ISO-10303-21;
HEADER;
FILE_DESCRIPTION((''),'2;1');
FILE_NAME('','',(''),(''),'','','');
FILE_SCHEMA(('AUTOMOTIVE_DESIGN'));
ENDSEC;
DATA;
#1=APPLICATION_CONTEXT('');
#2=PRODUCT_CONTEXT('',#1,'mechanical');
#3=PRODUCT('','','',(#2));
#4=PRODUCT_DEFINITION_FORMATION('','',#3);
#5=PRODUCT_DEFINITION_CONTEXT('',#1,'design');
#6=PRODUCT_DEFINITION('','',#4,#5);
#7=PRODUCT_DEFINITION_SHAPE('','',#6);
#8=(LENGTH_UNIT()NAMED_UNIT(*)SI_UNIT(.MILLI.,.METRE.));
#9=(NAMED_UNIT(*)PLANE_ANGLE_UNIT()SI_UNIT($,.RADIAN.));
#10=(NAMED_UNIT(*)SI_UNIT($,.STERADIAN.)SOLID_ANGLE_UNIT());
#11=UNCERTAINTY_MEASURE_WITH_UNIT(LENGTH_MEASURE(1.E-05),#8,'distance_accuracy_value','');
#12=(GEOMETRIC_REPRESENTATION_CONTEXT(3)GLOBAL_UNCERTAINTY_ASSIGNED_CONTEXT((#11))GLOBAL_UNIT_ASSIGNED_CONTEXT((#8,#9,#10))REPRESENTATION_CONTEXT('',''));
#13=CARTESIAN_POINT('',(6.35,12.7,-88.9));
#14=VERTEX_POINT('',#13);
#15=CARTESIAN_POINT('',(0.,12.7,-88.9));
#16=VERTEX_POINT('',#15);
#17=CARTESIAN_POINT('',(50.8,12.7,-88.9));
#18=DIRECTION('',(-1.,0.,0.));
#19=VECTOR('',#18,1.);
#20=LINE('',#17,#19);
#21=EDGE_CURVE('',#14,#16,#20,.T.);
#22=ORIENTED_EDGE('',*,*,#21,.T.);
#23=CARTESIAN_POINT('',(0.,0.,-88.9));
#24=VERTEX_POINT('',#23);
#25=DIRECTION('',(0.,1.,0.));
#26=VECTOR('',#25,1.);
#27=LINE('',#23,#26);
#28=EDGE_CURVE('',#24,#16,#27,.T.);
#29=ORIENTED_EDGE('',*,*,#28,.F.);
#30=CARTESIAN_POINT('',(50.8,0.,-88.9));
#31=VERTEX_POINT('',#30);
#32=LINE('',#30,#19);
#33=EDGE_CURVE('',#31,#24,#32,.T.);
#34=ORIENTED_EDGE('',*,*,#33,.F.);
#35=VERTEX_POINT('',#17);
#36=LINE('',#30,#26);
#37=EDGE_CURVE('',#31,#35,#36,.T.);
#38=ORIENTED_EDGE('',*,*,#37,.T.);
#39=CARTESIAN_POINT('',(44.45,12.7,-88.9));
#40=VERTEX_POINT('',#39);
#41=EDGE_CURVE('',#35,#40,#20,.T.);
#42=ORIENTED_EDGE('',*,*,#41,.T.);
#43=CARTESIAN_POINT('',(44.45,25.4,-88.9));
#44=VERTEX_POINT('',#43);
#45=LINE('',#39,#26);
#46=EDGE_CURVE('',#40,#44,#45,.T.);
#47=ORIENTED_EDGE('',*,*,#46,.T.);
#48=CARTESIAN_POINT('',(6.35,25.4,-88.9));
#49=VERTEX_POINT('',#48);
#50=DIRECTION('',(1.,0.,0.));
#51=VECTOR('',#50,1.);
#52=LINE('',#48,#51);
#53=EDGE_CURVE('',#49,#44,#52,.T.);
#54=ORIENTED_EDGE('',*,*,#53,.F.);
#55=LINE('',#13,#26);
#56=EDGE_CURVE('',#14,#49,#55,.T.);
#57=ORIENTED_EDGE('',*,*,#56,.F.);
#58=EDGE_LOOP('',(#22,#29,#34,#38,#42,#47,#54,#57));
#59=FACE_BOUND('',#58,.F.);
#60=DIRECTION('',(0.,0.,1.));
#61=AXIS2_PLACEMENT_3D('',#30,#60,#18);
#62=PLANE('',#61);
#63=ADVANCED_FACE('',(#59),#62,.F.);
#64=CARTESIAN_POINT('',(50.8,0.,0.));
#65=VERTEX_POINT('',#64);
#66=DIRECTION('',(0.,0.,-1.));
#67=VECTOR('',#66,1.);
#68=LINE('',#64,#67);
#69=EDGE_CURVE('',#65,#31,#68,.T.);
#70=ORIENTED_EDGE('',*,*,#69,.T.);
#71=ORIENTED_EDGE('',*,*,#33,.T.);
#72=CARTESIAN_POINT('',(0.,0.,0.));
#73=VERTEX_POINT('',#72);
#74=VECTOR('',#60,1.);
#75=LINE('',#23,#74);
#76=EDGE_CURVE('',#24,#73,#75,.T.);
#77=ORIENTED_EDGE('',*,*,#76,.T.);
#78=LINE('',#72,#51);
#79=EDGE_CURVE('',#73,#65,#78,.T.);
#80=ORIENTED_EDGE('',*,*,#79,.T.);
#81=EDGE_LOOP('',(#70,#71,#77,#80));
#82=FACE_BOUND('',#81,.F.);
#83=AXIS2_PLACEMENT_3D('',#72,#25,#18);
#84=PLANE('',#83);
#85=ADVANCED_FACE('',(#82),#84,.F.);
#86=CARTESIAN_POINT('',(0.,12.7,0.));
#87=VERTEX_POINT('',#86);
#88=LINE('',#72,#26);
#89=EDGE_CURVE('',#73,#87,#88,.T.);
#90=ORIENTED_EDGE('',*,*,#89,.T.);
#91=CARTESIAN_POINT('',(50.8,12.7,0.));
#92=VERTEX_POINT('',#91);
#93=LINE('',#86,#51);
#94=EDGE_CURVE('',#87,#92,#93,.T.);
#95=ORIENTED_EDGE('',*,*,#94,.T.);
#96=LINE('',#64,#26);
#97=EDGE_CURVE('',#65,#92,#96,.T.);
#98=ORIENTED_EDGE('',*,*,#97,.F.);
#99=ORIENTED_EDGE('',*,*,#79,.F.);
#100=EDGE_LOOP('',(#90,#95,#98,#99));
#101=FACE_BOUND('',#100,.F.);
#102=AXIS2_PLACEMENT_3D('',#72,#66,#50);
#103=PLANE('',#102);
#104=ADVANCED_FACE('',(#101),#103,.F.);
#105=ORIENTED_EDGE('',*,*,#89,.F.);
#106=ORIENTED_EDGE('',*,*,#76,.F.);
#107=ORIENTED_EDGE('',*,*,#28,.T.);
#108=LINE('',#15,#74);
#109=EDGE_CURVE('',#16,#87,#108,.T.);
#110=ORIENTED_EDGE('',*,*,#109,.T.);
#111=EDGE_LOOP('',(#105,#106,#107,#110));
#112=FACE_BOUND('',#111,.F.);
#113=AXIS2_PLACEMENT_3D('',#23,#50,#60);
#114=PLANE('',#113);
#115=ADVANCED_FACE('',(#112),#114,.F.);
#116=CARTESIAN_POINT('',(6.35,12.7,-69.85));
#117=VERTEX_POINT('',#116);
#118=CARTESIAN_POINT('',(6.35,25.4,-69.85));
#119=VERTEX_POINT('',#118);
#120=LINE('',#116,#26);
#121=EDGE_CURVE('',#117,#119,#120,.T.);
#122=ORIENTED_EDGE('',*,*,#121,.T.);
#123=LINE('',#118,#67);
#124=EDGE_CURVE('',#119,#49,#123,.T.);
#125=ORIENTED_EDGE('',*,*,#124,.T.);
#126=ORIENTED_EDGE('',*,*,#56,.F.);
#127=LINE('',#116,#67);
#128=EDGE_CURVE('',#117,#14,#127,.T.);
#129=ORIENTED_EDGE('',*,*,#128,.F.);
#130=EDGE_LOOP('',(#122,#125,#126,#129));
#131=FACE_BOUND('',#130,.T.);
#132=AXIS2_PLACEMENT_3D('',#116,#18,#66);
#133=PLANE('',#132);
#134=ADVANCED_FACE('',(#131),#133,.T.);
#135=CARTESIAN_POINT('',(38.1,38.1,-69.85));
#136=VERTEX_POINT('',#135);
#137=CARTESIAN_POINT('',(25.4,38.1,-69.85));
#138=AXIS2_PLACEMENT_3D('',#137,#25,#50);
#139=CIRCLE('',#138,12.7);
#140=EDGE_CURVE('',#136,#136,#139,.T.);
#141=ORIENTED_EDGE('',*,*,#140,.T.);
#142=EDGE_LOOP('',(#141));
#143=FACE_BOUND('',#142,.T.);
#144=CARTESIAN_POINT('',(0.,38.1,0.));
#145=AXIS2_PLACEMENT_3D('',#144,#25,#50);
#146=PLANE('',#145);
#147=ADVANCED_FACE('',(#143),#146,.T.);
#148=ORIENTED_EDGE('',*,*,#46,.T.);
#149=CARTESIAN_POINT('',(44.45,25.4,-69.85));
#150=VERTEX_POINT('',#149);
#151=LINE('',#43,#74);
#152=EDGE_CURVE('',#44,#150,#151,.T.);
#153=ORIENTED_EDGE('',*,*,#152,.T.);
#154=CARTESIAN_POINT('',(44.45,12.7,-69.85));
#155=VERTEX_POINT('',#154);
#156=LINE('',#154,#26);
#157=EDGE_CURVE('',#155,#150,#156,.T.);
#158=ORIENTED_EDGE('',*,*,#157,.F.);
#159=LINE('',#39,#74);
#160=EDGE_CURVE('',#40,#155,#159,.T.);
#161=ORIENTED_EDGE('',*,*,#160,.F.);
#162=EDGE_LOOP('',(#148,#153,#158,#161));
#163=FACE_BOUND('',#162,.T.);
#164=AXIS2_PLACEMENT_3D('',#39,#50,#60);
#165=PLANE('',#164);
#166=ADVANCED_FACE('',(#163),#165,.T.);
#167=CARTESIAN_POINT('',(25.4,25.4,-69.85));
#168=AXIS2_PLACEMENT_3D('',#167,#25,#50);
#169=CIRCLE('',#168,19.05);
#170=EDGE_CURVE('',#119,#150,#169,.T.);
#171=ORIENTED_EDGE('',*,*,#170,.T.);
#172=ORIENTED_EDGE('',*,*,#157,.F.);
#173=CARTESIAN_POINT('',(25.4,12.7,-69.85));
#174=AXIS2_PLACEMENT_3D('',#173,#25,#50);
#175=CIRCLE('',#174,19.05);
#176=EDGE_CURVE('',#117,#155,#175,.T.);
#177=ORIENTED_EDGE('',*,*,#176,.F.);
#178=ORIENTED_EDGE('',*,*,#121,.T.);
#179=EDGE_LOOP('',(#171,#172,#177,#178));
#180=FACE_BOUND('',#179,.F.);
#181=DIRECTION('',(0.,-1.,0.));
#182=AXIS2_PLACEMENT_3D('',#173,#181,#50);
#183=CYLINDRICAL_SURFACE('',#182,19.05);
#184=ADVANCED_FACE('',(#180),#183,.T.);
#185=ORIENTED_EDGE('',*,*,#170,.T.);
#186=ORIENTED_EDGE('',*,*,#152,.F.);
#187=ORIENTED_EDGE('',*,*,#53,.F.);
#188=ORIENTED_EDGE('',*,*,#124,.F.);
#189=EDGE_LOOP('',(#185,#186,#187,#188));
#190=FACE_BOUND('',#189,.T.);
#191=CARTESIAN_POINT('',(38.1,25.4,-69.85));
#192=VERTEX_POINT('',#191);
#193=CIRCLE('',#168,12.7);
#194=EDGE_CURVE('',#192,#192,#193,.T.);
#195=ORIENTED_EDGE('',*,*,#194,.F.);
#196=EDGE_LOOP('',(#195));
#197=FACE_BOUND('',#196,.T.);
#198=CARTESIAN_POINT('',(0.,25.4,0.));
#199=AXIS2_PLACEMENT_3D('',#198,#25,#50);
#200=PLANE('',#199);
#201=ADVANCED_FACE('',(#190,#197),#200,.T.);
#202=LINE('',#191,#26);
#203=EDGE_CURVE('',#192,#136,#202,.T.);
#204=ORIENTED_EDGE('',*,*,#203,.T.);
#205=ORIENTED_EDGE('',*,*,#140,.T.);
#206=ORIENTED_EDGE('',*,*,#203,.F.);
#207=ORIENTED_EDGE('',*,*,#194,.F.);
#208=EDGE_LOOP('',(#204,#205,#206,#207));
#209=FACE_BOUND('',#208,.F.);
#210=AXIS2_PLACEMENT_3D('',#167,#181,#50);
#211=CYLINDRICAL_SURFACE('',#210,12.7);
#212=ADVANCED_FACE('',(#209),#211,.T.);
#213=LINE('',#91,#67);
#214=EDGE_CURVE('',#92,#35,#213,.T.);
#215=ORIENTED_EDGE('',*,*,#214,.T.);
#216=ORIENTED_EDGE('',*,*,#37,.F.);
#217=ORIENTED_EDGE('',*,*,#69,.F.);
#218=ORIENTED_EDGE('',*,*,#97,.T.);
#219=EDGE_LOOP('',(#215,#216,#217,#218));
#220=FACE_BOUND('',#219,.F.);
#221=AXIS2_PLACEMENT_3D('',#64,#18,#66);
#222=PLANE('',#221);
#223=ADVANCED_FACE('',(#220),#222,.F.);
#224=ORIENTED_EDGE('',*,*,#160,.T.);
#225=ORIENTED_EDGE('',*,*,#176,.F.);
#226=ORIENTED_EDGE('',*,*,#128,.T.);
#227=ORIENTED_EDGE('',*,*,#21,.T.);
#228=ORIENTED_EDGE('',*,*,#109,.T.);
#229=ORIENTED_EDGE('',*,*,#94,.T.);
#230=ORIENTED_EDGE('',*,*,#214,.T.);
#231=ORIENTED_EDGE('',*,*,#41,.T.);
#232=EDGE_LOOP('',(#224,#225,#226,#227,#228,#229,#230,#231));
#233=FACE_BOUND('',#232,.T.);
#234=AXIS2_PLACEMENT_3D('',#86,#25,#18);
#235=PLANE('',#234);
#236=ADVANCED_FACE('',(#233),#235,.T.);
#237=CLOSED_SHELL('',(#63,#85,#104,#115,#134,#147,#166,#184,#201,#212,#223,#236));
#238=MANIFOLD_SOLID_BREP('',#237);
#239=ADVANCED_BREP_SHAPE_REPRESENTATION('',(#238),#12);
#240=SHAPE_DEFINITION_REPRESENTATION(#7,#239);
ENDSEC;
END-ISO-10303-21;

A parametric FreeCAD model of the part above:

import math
import FreeCAD as App
import Part
import Sketcher
Q = App.Units.Quantity

doc = App.newDocument("Part")
body = doc.addObject("PartDesign::Body", "Body")

sketch1 = body.newObject("Sketcher::SketchObject", "Sketch")
sketch1.AttachmentSupport = (doc.getObject("XZ_Plane"), [""])
sketch1.MapMode = "FlatFace"
sketch1.addGeometry(Part.LineSegment(App.Vector(0, -88.9, 0), App.Vector(0, 0, 0)), False)
sketch1.addGeometry(Part.LineSegment(App.Vector(0, 0, 0), App.Vector(50.8, 0, 0)), False)
sketch1.addGeometry(Part.LineSegment(App.Vector(50.8, 0, 0), App.Vector(50.8, -88.9, 0)), False)
sketch1.addGeometry(Part.LineSegment(App.Vector(50.8, -88.9, 0), App.Vector(0, -88.9, 0)), False)
sketch1.addConstraint(Sketcher.Constraint("Coincident", 0, 2, 1, 1))
sketch1.addConstraint(Sketcher.Constraint("Coincident", 1, 2, 2, 1))
sketch1.addConstraint(Sketcher.Constraint("Coincident", 2, 2, 3, 1))
sketch1.addConstraint(Sketcher.Constraint("Coincident", 3, 2, 0, 1))
sketch1.addConstraint(Sketcher.Constraint("Vertical", 0))
sketch1.addConstraint(Sketcher.Constraint("Horizontal", 1))
sketch1.addConstraint(Sketcher.Constraint("Vertical", 2))
sketch1.addConstraint(Sketcher.Constraint("Horizontal", 3))
sketch1.addConstraint(Sketcher.Constraint("Coincident", 0, 2, -1, 1))
sketch1.addConstraint(Sketcher.Constraint("DistanceX", 1, 1, 1, 2, Q("2 in")))
sketch1.addConstraint(Sketcher.Constraint("DistanceY", 0, 1, 0, 2, Q("3.5 in")))
pad1 = body.newObject("PartDesign::Pad", "Pad")
pad1.Profile = sketch1
pad1.Length = Q("0.5 in")
pad1.Reversed = True

sketch2 = body.newObject("Sketcher::SketchObject", "Sketch001")
sketch2.AttachmentSupport = (doc.getObject("XZ_Plane"), [""])
sketch2.MapMode = "FlatFace"
sketch2.AttachmentOffset = App.Placement(App.Vector(0, 0, -0.5 * 25.4), App.Rotation())
sketch2.addGeometry(Part.LineSegment(App.Vector(44.45, -69.85, 0), App.Vector(44.45, -88.9, 0)), False)
sketch2.addGeometry(Part.LineSegment(App.Vector(44.45, -88.9, 0), App.Vector(6.35, -88.9, 0)), False)
sketch2.addGeometry(Part.LineSegment(App.Vector(6.35, -88.9, 0), App.Vector(6.35, -69.85, 0)), False)
sketch2.addGeometry(Part.ArcOfCircle(Part.Circle(App.Vector(25.4, -69.85, 0), App.Vector(0, 0, 1), 19.05), math.radians(0), math.radians(180)), False)
sketch2.addConstraint(Sketcher.Constraint("Coincident", 0, 2, 1, 1))
sketch2.addConstraint(Sketcher.Constraint("Coincident", 1, 2, 2, 1))
sketch2.addConstraint(Sketcher.Constraint("Tangent", 2, 2, 3, 2))
sketch2.addConstraint(Sketcher.Constraint("Tangent", 3, 1, 0, 1))
sketch2.addConstraint(Sketcher.Constraint("Vertical", 0))
sketch2.addConstraint(Sketcher.Constraint("Horizontal", 1))
sketch2.addConstraint(Sketcher.Constraint("Vertical", 2))
sketch2.addConstraint(Sketcher.Constraint("Radius", 3, Q("0.75 in")))
sketch2.addConstraint(Sketcher.Constraint("DistanceY", 0, 2, 0, 1, Q("0.75 in")))
sketch2.addConstraint(Sketcher.Constraint("DistanceX", -1, 1, 1, 2, Q("0.25 in")))
sketch2.addConstraint(Sketcher.Constraint("DistanceY", 0, 2, -1, 1, Q("3.5 in")))
pad2 = body.newObject("PartDesign::Pad", "Pad001")
pad2.Profile = sketch2
pad2.Length = Q("0.5 in")
pad2.Reversed = True

sketch3 = body.newObject("Sketcher::SketchObject", "Sketch002")
sketch3.AttachmentSupport = (doc.getObject("XZ_Plane"), [""])
sketch3.MapMode = "FlatFace"
sketch3.AttachmentOffset = App.Placement(App.Vector(0, 0, -1 * 25.4), App.Rotation())
sketch3.addGeometry(Part.Circle(App.Vector(25.4, -69.85, 0), App.Vector(0, 0, 1), 12.7), False)
sketch3.addConstraint(Sketcher.Constraint("Diameter", 0, Q("1 in")))
sketch3.addConstraint(Sketcher.Constraint("DistanceX", -1, 1, 0, 3, Q("1 in")))
sketch3.addConstraint(Sketcher.Constraint("DistanceY", 0, 3, -1, 1, Q("2.75 in")))
pad3 = body.newObject("PartDesign::Pad", "Pad002")
pad3.Profile = sketch3
pad3.Length = Q("0.5 in")
pad3.Reversed = True

doc.recompute()
